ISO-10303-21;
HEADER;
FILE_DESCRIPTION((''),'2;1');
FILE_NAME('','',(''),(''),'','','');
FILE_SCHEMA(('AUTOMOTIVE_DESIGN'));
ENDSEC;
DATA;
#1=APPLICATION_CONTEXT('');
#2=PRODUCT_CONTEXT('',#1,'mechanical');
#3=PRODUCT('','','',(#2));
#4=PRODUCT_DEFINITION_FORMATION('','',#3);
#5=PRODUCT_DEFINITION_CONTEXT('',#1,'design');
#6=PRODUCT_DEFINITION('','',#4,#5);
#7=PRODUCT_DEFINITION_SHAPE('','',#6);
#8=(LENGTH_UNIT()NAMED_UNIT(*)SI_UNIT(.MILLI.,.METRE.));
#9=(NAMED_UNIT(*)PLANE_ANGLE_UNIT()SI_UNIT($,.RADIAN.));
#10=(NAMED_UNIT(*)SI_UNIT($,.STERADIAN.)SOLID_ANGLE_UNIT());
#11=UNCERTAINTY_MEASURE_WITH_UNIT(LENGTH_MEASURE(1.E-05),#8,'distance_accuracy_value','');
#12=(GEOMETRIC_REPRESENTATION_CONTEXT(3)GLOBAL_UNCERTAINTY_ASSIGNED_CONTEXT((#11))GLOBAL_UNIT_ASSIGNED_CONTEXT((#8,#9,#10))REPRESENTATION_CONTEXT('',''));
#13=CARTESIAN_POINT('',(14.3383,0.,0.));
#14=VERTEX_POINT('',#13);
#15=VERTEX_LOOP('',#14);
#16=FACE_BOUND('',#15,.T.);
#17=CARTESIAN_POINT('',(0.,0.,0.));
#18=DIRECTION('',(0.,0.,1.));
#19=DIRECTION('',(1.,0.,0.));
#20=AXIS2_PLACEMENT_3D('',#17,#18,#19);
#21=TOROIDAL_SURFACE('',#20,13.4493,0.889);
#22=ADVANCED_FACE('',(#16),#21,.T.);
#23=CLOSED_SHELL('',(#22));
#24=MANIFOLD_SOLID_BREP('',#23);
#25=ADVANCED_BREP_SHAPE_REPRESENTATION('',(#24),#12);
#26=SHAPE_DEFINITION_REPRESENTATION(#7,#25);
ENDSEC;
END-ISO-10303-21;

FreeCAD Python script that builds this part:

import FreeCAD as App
import Part
import Sketcher
Q = App.Units.Quantity

doc = App.newDocument("Part")
params = doc.addObject("Spreadsheet::Sheet", "Params")
for row, (alias, value) in enumerate([
    ("sketch1_diameter", "0.07 in"),
    ("revolution_angle", "360 deg"),
], start=1):
    params.set(f"A{row}", alias)
    params.set(f"B{row}", "=" + value)
    params.setAlias(f"B{row}", alias)

body = doc.addObject("PartDesign::Body", "Body")

sketch1 = body.newObject("Sketcher::SketchObject", "Sketch")
sketch1.AttachmentSupport = (doc.getObject("YZ_Plane"), [""])
sketch1.MapMode = "FlatFace"
sketch1.addGeometry(Part.Circle(App.Vector(-13.4493, 0, 0), App.Vector(0, 0, 1), 0.889), False)
sketch1.addConstraint([
    Sketcher.Constraint("PointOnObject", 0, 3, -1),
    Sketcher.Constraint("Diameter", 0, Q("0.07 in")),
    Sketcher.Constraint("DistanceX", 0, 3, -1, 1, Q("0.5295 in")),
])
sketch1.setExpression("Constraints[1]", "Params.sketch1_diameter")
revolution = body.newObject("PartDesign::Revolution", "Revolution")
revolution.Profile = sketch1
revolution.ReferenceAxis = (sketch1, ["V_Axis"])
revolution.setExpression("Angle", "Params.revolution_angle")

doc.recompute()
